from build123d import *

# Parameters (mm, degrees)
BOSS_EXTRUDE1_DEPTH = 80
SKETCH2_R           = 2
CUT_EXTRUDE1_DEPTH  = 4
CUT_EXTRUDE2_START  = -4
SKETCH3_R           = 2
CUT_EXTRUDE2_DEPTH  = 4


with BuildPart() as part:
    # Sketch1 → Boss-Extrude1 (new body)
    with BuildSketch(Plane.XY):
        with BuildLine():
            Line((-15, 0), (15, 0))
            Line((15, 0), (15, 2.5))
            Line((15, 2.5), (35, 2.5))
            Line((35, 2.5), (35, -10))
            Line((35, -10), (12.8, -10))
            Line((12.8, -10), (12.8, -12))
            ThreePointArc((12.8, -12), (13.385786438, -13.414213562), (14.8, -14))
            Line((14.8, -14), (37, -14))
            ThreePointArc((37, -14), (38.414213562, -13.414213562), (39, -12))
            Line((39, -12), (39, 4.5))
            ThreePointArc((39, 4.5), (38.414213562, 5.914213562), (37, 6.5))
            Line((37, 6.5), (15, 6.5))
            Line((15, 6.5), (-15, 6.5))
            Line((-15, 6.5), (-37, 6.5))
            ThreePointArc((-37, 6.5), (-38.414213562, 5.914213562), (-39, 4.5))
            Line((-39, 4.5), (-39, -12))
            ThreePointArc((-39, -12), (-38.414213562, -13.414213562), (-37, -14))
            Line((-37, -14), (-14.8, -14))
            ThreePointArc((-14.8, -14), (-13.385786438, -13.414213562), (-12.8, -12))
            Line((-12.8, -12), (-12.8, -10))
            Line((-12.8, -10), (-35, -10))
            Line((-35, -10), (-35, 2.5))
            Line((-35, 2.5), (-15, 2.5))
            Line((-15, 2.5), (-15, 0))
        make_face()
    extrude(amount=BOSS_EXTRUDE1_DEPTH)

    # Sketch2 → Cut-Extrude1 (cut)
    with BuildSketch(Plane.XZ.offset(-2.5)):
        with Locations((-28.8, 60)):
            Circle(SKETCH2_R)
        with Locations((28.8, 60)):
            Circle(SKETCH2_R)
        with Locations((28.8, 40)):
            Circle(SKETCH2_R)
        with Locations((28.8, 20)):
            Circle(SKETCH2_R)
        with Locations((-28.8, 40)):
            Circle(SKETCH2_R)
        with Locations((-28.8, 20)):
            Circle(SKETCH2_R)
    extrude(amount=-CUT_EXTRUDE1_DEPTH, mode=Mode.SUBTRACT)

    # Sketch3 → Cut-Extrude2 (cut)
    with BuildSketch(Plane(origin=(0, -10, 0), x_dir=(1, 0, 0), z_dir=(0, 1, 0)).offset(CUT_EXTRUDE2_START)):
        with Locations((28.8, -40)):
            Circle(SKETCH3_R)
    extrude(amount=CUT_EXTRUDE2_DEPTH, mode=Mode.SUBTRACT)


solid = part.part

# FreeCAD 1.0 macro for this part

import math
import FreeCAD as App
import Part
import Sketcher

V = App.Vector
Q = App.Units.Quantity

doc = App.newDocument("Part")
body = doc.addObject("PartDesign::Body", "Body")

sketch1 = body.newObject("Sketcher::SketchObject", "Sketch")
sketch1.AttachmentSupport = (doc.getObject("XY_Plane"), [""])
sketch1.MapMode = "FlatFace"
sketch1.addGeometry([
    Part.LineSegment(V(-15, 0, 0), V(15, 0, 0)),
    Part.LineSegment(V(15, 0, 0), V(15, 2.5, 0)),
    Part.LineSegment(V(15, 2.5, 0), V(35, 2.5, 0)),
    Part.LineSegment(V(35, 2.5, 0), V(35, -10, 0)),
    Part.LineSegment(V(35, -10, 0), V(12.8, -10, 0)),
    Part.LineSegment(V(12.8, -10, 0), V(12.8, -12, 0)),
    Part.ArcOfCircle(Part.Circle(V(14.8, -12, 0), V(0, 0, 1), 2), math.radians(-180), math.radians(-90)),
    Part.LineSegment(V(14.8, -14, 0), V(37, -14, 0)),
    Part.ArcOfCircle(Part.Circle(V(37, -12, 0), V(0, 0, 1), 2), math.radians(-90), math.radians(0)),
    Part.LineSegment(V(39, -12, 0), V(39, 4.5, 0)),
    Part.ArcOfCircle(Part.Circle(V(37, 4.5, 0), V(0, 0, 1), 2), math.radians(0), math.radians(90)),
    Part.LineSegment(V(37, 6.5, 0), V(-37, 6.5, 0)),
    Part.ArcOfCircle(Part.Circle(V(-37, 4.5, 0), V(0, 0, 1), 2), math.radians(90), math.radians(180)),
    Part.LineSegment(V(-39, 4.5, 0), V(-39, -12, 0)),
    Part.ArcOfCircle(Part.Circle(V(-37, -12, 0), V(0, 0, 1), 2), math.radians(-180), math.radians(-90)),
    Part.LineSegment(V(-37, -14, 0), V(-14.8, -14, 0)),
    Part.ArcOfCircle(Part.Circle(V(-14.8, -12, 0), V(0, 0, 1), 2), math.radians(-90), math.radians(0)),
    Part.LineSegment(V(-12.8, -12, 0), V(-12.8, -10, 0)),
    Part.LineSegment(V(-12.8, -10, 0), V(-35, -10, 0)),
    Part.LineSegment(V(-35, -10, 0), V(-35, 2.5, 0)),
    Part.LineSegment(V(-35, 2.5, 0), V(-15, 2.5, 0)),
    Part.LineSegment(V(-15, 2.5, 0), V(-15, 0, 0)),
], False)
sketch1.addConstraint([
    Sketcher.Constraint("Coincident", 0, 2, 1, 1),
    Sketcher.Constraint("Coincident", 1, 2, 2, 1),
    Sketcher.Constraint("Coincident", 2, 2, 3, 1),
    Sketcher.Constraint("Coincident", 3, 2, 4, 1),
    Sketcher.Constraint("Coincident", 4, 2, 5, 1),
    Sketcher.Constraint("Tangent", 5, 2, 6, 1),
    Sketcher.Constraint("Tangent", 6, 2, 7, 1),
    Sketcher.Constraint("Tangent", 7, 2, 8, 1),
    Sketcher.Constraint("Tangent", 8, 2, 9, 1),
    Sketcher.Constraint("Tangent", 9, 2, 10, 1),
    Sketcher.Constraint("Tangent", 10, 2, 11, 1),
    Sketcher.Constraint("Tangent", 11, 2, 12, 1),
    Sketcher.Constraint("Tangent", 12, 2, 13, 1),
    Sketcher.Constraint("Tangent", 13, 2, 14, 1),
    Sketcher.Constraint("Tangent", 14, 2, 15, 1),
    Sketcher.Constraint("Tangent", 15, 2, 16, 1),
    Sketcher.Constraint("Tangent", 16, 2, 17, 1),
    Sketcher.Constraint("Coincident", 17, 2, 18, 1),
    Sketcher.Constraint("Coincident", 18, 2, 19, 1),
    Sketcher.Constraint("Coincident", 19, 2, 20, 1),
    Sketcher.Constraint("Coincident", 20, 2, 21, 1),
    Sketcher.Constraint("Coincident", 21, 2, 0, 1),
    Sketcher.Constraint("Horizontal", 0),
    Sketcher.Constraint("Vertical", 1),
    Sketcher.Constraint("Horizontal", 2),
    Sketcher.Constraint("Vertical", 3),
    Sketcher.Constraint("Horizontal", 4),
    Sketcher.Constraint("Vertical", 5),
    Sketcher.Constraint("Horizontal", 7),
    Sketcher.Constraint("Vertical", 9),
    Sketcher.Constraint("Horizontal", 11),
    Sketcher.Constraint("Vertical", 13),
    Sketcher.Constraint("Horizontal", 15),
    Sketcher.Constraint("Vertical", 17),
    Sketcher.Constraint("Horizontal", 18),
    Sketcher.Constraint("Vertical", 19),
    Sketcher.Constraint("Horizontal", 20),
    Sketcher.Constraint("Vertical", 21),
    Sketcher.Constraint("Equal", 6, 8),
    Sketcher.Constraint("Equal", 8, 10),
    Sketcher.Constraint("Equal", 10, 12),
    Sketcher.Constraint("Equal", 12, 14),
    Sketcher.Constraint("Equal", 14, 16),
    Sketcher.Constraint("Symmetric", 0, 2, 21, 2, -1, 1),
    Sketcher.Constraint("Symmetric", 8, 3, 14, 3, -2),
    Sketcher.Constraint("Symmetric", 4, 2, 17, 2, -2),
    Sketcher.Constraint("Symmetric", 2, 2, 19, 2, -2),
    Sketcher.Constraint("Equal", 4, 7),
    Sketcher.Constraint("Radius", 6, Q("2 mm")),
    Sketcher.Constraint("DistanceX", 0, 1, 0, 2, Q("30 mm")),
    Sketcher.Constraint("DistanceX", 2, 1, 2, 2, Q("20 mm")),
    Sketcher.Constraint("DistanceY", 5, 2, 5, 1, Q("2 mm")),
    Sketcher.Constraint("DistanceX", 4, 2, 4, 1, Q("22.2 mm")),
    Sketcher.Constraint("DistanceY", 1, 1, 1, 2, Q("2.5 mm")),
    Sketcher.Constraint("DistanceY", 3, 2, 3, 1, Q("12.5 mm")),
    Sketcher.Constraint("DistanceY", 9, 1, 9, 2, Q("16.5 mm")),
])
pad1 = body.newObject("PartDesign::Pad", "Pad")
pad1.Profile = sketch1
pad1.Length = 80

sketch2 = body.newObject("Sketcher::SketchObject", "Sketch001")
sketch2.AttachmentSupport = (doc.getObject("XZ_Plane"), [""])
sketch2.MapMode = "FlatFace"
sketch2.AttachmentOffset = App.Placement(V(0, 0, -2.5), App.Rotation())
sketch2.addGeometry([
    Part.Circle(V(-28.8, 60, 0), V(0, 0, 1), 2),
    Part.Circle(V(28.8, 60, 0), V(0, 0, 1), 2),
    Part.Circle(V(28.8, 40, 0), V(0, 0, 1), 2),
    Part.Circle(V(28.8, 20, 0), V(0, 0, 1), 2),
    Part.Circle(V(-28.8, 40, 0), V(0, 0, 1), 2),
    Part.Circle(V(-28.8, 20, 0), V(0, 0, 1), 2),
], False)
sketch2.addConstraint([
    Sketcher.Constraint("Equal", 0, 1),
    Sketcher.Constraint("Equal", 1, 2),
    Sketcher.Constraint("Equal", 2, 3),
    Sketcher.Constraint("Equal", 3, 4),
    Sketcher.Constraint("Equal", 4, 5),
    Sketcher.Constraint("Symmetric", 0, 3, 1, 3, -2),
    Sketcher.Constraint("Symmetric", 2, 3, 4, 3, -2),
    Sketcher.Constraint("Symmetric", 3, 3, 5, 3, -2),
    Sketcher.Constraint("Vertical", 1, 3, 2, 3),
    Sketcher.Constraint("Vertical", 2, 3, 3, 3),
    Sketcher.Constraint("Diameter", 0, Q("4 mm")),
    Sketcher.Constraint("DistanceY", -1, 1, 0, 3, Q("60 mm")),
    Sketcher.Constraint("DistanceY", -1, 1, 2, 3, Q("40 mm")),
    Sketcher.Constraint("DistanceY", -1, 1, 3, 3, Q("20 mm")),
    Sketcher.Constraint("DistanceX", 0, 3, -1, 1, Q("28.8 mm")),
])
pocket1 = body.newObject("PartDesign::Pocket", "Pocket")
pocket1.Profile = sketch2
pocket1.Length = 4

sketch3 = body.newObject("Sketcher::SketchObject", "Sketch002")
sketch3.AttachmentSupport = (doc.getObject("XZ_Plane"), [""])
sketch3.MapMode = "FlatFace"
sketch3.AttachmentOffset = App.Placement(V(0, 0, 14), App.Rotation())
sketch3.addGeometry(Part.Circle(V(28.8, 40, 0), V(0, 0, 1), 2), False)
sketch3.addConstraint([
    Sketcher.Constraint("Diameter", 0, Q("4 mm")),
    Sketcher.Constraint("DistanceY", -1, 1, 0, 3, Q("40 mm")),
    Sketcher.Constraint("DistanceX", -1, 1, 0, 3, Q("28.8 mm")),
])
pocket2 = body.newObject("PartDesign::Pocket", "Pocket001")
pocket2.Profile = sketch3
pocket2.Length = 4

doc.recompute()
